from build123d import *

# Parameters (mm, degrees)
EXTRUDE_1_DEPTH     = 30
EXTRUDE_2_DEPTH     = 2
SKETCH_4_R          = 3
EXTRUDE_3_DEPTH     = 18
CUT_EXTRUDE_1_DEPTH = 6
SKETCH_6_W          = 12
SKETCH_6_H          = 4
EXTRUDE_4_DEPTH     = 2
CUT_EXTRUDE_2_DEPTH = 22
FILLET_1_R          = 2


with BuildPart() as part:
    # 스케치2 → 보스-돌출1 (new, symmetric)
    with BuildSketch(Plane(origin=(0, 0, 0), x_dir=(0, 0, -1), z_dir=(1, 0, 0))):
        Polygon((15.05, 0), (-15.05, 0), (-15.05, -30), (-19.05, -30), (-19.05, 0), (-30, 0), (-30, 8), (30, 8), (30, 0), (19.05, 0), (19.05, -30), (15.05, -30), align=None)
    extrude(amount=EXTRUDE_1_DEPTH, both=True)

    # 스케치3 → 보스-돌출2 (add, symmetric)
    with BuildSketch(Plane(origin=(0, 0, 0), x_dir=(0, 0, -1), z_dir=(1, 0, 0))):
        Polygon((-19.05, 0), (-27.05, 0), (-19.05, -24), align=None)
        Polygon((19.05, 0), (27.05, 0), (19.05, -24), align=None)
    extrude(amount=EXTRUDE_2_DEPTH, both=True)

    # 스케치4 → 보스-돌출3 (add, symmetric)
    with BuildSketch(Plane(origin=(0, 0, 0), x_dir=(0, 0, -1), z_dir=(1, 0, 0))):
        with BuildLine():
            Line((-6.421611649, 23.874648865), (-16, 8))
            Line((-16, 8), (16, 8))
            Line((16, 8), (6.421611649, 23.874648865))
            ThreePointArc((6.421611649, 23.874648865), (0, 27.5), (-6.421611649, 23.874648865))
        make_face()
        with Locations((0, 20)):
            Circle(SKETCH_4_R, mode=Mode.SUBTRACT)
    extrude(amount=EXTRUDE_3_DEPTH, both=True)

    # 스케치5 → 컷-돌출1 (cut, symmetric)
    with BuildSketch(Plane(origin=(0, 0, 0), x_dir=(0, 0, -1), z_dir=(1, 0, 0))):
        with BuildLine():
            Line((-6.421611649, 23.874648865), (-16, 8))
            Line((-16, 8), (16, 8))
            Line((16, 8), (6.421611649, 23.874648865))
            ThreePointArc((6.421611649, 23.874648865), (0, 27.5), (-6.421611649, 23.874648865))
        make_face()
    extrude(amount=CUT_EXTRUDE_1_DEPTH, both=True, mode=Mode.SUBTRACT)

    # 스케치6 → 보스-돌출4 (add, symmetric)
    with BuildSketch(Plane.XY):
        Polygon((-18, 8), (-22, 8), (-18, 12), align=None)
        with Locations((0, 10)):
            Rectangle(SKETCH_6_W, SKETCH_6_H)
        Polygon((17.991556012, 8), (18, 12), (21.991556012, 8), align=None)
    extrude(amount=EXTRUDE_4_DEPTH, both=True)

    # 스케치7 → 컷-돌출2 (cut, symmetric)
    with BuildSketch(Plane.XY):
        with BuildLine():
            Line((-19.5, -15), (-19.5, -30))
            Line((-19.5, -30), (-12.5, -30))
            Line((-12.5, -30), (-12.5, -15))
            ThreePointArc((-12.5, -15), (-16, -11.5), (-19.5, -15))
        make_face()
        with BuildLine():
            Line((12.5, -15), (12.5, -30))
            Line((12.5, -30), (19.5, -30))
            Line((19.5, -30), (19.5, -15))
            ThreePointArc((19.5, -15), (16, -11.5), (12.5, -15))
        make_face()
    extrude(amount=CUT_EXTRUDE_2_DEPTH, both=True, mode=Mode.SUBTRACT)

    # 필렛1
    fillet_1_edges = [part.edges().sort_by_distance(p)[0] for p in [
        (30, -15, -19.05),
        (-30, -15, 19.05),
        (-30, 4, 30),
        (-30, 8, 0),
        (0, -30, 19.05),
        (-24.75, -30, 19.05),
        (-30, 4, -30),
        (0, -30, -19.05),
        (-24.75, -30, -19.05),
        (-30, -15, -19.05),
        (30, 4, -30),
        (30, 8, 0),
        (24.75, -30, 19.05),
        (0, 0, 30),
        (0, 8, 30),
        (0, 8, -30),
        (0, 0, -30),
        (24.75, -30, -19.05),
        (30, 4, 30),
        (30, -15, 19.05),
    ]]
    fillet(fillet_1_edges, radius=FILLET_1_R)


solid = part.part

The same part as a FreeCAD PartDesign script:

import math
import FreeCAD as App
import Part
import Sketcher


def edges_at(feature, points):
    """Names of the edges that pass closest to the given points."""
    edges = feature.Shape.Edges
    near = lambda p: min(range(len(edges)), key=lambda i: edges[i].distToShape(Part.Vertex(*p))[0])
    return sorted({f"Edge{near(p) + 1}" for p in points})


def add_polygon(sketch, points):
    """Adds a closed chain of lines whose ends are joined by coincident constraints."""
    first, n = sketch.GeometryCount, len(points)
    for a, b in zip(points, points[1:] + points[:1]):
        sketch.addGeometry(Part.LineSegment(App.Vector(*a, 0), App.Vector(*b, 0)), False)
    for i in range(n):
        sketch.addConstraint(Sketcher.Constraint("Coincident", first + i, 2, first + (i + 1) % n, 1))

doc = App.newDocument("Part")
body = doc.addObject("PartDesign::Body", "Body")

sketch1 = body.newObject("Sketcher::SketchObject", "Sketch")
sketch1.AttachmentSupport = (doc.getObject("YZ_Plane"), [""])
sketch1.MapMode = "FlatFace"
add_polygon(sketch1, [(0, 15.1), (0, -15.1), (-30, -15.1), (-30, -19.1), (0, -19.1), (0, -30), (8, -30), (8, 30), (0, 30), (0, 19.1), (-30, 19.1), (-30, 15.1)])
sketch1.addConstraint([
    Sketcher.Constraint("Vertical", 0),
    Sketcher.Constraint("Horizontal", 1),
    Sketcher.Constraint("Vertical", 2),
    Sketcher.Constraint("Horizontal", 3),
    Sketcher.Constraint("Vertical", 4),
    Sketcher.Constraint("Horizontal", 5),
    Sketcher.Constraint("Vertical", 6),
    Sketcher.Constraint("Horizontal", 7),
    Sketcher.Constraint("Vertical", 8),
    Sketcher.Constraint("Horizontal", 9),
    Sketcher.Constraint("Vertical", 10),
    Sketcher.Constraint("Horizontal", 11),
    Sketcher.Constraint("Symmetric", 4, 2, 7, 2, -1, 1),
    Sketcher.Constraint("Symmetric", 0, 2, 11, 2, -1, 1),
    Sketcher.Constraint("Symmetric", 3, 2, 8, 2, -1),
    Sketcher.Constraint("Vertical", 2, 2, 9, 2),
    Sketcher.Constraint("DistanceX", 1, 2, 1, 1, 30.0),
    Sketcher.Constraint("DistanceX", 5, 1, 5, 2, 8.0),
    Sketcher.Constraint("DistanceY", 2, 2, 2, 1, 4.0),
    Sketcher.Constraint("DistanceY", 6, 1, 6, 2, 60.0),
    Sketcher.Constraint("DistanceY", 0, 2, 0, 1, 30.1),
])
pad1 = body.newObject("PartDesign::Pad", "Pad")
pad1.Profile = sketch1
pad1.Length = 60
pad1.Midplane = True

sketch2 = body.newObject("Sketcher::SketchObject", "Sketch001")
sketch2.AttachmentSupport = (doc.getObject("YZ_Plane"), [""])
sketch2.MapMode = "FlatFace"
add_polygon(sketch2, [(0, 19), (0, 27), (-24, 19)])
add_polygon(sketch2, [(0, -27), (0, -19), (-24, -19)])
sketch2.addConstraint([
    Sketcher.Constraint("Vertical", 0),
    Sketcher.Constraint("Horizontal", 2),
    Sketcher.Constraint("Vertical", 3),
    Sketcher.Constraint("Horizontal", 4),
    Sketcher.Constraint("Symmetric", 2, 2, 3, 2, -1, 1),
    Sketcher.Constraint("Symmetric", 0, 2, 5, 2, -1),
    Sketcher.Constraint("Vertical", 1, 2, 4, 2),
    Sketcher.Constraint("DistanceX", 2, 1, 2, 2, 24.0),
    Sketcher.Constraint("DistanceY", 0, 1, 0, 2, 8.0),
    Sketcher.Constraint("DistanceY", 3, 2, 2, 2, 38.1),
])
pad2 = body.newObject("PartDesign::Pad", "Pad001")
pad2.Profile = sketch2
pad2.Length = 4
pad2.Midplane = True

sketch3 = body.newObject("Sketcher::SketchObject", "Sketch002")
sketch3.AttachmentSupport = (doc.getObject("YZ_Plane"), [""])
sketch3.MapMode = "FlatFace"
sketch3.addGeometry([
    Part.LineSegment(App.Vector(23.9, 6.4, 0), App.Vector(8, 16, 0)),
    Part.LineSegment(App.Vector(8, 16, 0), App.Vector(8, -16, 0)),
    Part.LineSegment(App.Vector(8, -16, 0), App.Vector(23.9, -6.4, 0)),
    Part.ArcOfCircle(Part.Circle(App.Vector(20, 0, 0), App.Vector(0, 0, 1), 7.5), math.radians(-59), math.radians(59)),
    Part.Circle(App.Vector(20, 0, 0), App.Vector(0, 0, 1), 3),
], False)
sketch3.addConstraint([
    Sketcher.Constraint("Coincident", 0, 2, 1, 1),
    Sketcher.Constraint("Coincident", 1, 2, 2, 1),
    Sketcher.Constraint("Tangent", 2, 2, 3, 1),
    Sketcher.Constraint("Tangent", 3, 2, 0, 1),
    Sketcher.Constraint("Vertical", 1),
    Sketcher.Constraint("Coincident", 4, 3, 3, 3),
    Sketcher.Constraint("Symmetric", 2, 2, 3, 2, -1),
    Sketcher.Constraint("Diameter", 4, 6.0),
    Sketcher.Constraint("Radius", 3, 7.5),
    Sketcher.Constraint("DistanceY", 1, 2, 1, 1, 32.0),
    Sketcher.Constraint("DistanceX", -1, 1, 3, 3, 20.0),
    Sketcher.Constraint("DistanceX", -1, 1, 0, 2, 8.0),
])
pad3 = body.newObject("PartDesign::Pad", "Pad002")
pad3.Profile = sketch3
pad3.Length = 36
pad3.Midplane = True

sketch4 = body.newObject("Sketcher::SketchObject", "Sketch003")
sketch4.AttachmentSupport = (doc.getObject("YZ_Plane"), [""])
sketch4.MapMode = "FlatFace"
sketch4.addGeometry([
    Part.LineSegment(App.Vector(24, 6, 0), App.Vector(8, 16, 0)),
    Part.LineSegment(App.Vector(8, 16, 0), App.Vector(8, -16, 0)),
    Part.LineSegment(App.Vector(8, -16, 0), App.Vector(24, -6, 0)),
    Part.ArcOfCircle(Part.Circle(App.Vector(20, 0, 0), App.Vector(0, 0, 1), 8), math.radians(-59), math.radians(59)),
], False)
sketch4.addConstraint([
    Sketcher.Constraint("Coincident", 0, 2, 1, 1),
    Sketcher.Constraint("Coincident", 1, 2, 2, 1),
    Sketcher.Constraint("Tangent", 2, 2, 3, 1),
    Sketcher.Constraint("Tangent", 3, 2, 0, 1),
    Sketcher.Constraint("Vertical", 1),
    Sketcher.Constraint("Symmetric", 2, 2, 3, 2, -1),
    Sketcher.Constraint("Radius", 3, 7.5),
    Sketcher.Constraint("DistanceY", 1, 2, 1, 1, 32.0),
    Sketcher.Constraint("DistanceX", -1, 1, 3, 3, 20.0),
    Sketcher.Constraint("DistanceX", -1, 1, 0, 2, 8.0),
])
pocket1 = body.newObject("PartDesign::Pocket", "Pocket")
pocket1.Profile = sketch4
pocket1.Length = 12
pocket1.Midplane = True

sketch5 = body.newObject("Sketcher::SketchObject", "Sketch004")
sketch5.AttachmentSupport = (doc.getObject("XY_Plane"), [""])
sketch5.MapMode = "FlatFace"
add_polygon(sketch5, [(-22, 8), (-18, 8), (-18, 12)])
add_polygon(sketch5, [(-6, 12), (-6, 8), (6, 8), (6, 12)])
add_polygon(sketch5, [(18, 12), (18, 8), (22, 8)])
sketch5.addConstraint([
    Sketcher.Constraint("Horizontal", 0),
    Sketcher.Constraint("Vertical", 1),
    Sketcher.Constraint("Vertical", 3),
    Sketcher.Constraint("Horizontal", 4),
    Sketcher.Constraint("Vertical", 5),
    Sketcher.Constraint("Horizontal", 6),
    Sketcher.Constraint("Horizontal", 8),
    Sketcher.Constraint("Symmetric", 1, 2, 9, 2, -2),
    Sketcher.Constraint("Horizontal", 2, 2, 3, 2),
    Sketcher.Constraint("Horizontal", 1, 2, 5, 2),
    Sketcher.Constraint("Horizontal", 4, 2, 7, 2),
    Sketcher.Constraint("Equal", 0, 8),
    Sketcher.Constraint("Equal", 8, 1),
    Sketcher.Constraint("DistanceX", 0, 1, 0, 2, 4.0),
    Sketcher.Constraint("DistanceX", 4, 1, 4, 2, 12.0),
    Sketcher.Constraint("DistanceX", 0, 2, -1, 1, 18.0),
    Sketcher.Constraint("DistanceY", -1, 1, 0, 2, 8.0),
    Sketcher.Constraint("DistanceX", 3, 2, -1, 1, 6.0),
    Sketcher.Constraint("Distance", 9, 5.650887),
])
pad4 = body.newObject("PartDesign::Pad", "Pad003")
pad4.Profile = sketch5
pad4.Length = 4
pad4.Midplane = True

sketch6 = body.newObject("Sketcher::SketchObject", "Sketch005")
sketch6.AttachmentSupport = (doc.getObject("XY_Plane"), [""])
sketch6.MapMode = "FlatFace"
sketch6.addGeometry([
    Part.LineSegment(App.Vector(-19.5, -15, 0), App.Vector(-19.5, -30, 0)),
    Part.LineSegment(App.Vector(-19.5, -30, 0), App.Vector(-12.5, -30, 0)),
    Part.LineSegment(App.Vector(-12.5, -30, 0), App.Vector(-12.5, -15, 0)),
    Part.ArcOfCircle(Part.Circle(App.Vector(-16, -15, 0), App.Vector(0, 0, 1), 3.5), math.radians(0), math.radians(180)),
    Part.LineSegment(App.Vector(12.5, -15, 0), App.Vector(12.5, -30, 0)),
    Part.LineSegment(App.Vector(12.5, -30, 0), App.Vector(19.5, -30, 0)),
    Part.LineSegment(App.Vector(19.5, -30, 0), App.Vector(19.5, -15, 0)),
    Part.ArcOfCircle(Part.Circle(App.Vector(16, -15, 0), App.Vector(0, 0, 1), 3.5), math.radians(0), math.radians(180)),
], False)
sketch6.addConstraint([
    Sketcher.Constraint("Coincident", 0, 2, 1, 1),
    Sketcher.Constraint("Coincident", 1, 2, 2, 1),
    Sketcher.Constraint("Tangent", 2, 2, 3, 1),
    Sketcher.Constraint("Tangent", 3, 2, 0, 1),
    Sketcher.Constraint("Coincident", 4, 2, 5, 1),
    Sketcher.Constraint("Coincident", 5, 2, 6, 1),
    Sketcher.Constraint("Tangent", 6, 2, 7, 1),
    Sketcher.Constraint("Tangent", 7, 2, 4, 1),
    Sketcher.Constraint("Vertical", 0),
    Sketcher.Constraint("Horizontal", 1),
    Sketcher.Constraint("Vertical", 2),
    Sketcher.Constraint("Vertical", 4),
    Sketcher.Constraint("Horizontal", 5),
    Sketcher.Constraint("Vertical", 6),
    Sketcher.Constraint("Equal", 3, 7),
    Sketcher.Constraint("Symmetric", 3, 3, 7, 3, -2),
    Sketcher.Constraint("Horizontal", 1, 2, 4, 2),
    Sketcher.Constraint("Radius", 3, 3.5),
    Sketcher.Constraint("DistanceY", 0, 2, 0, 1, 15.0),
    Sketcher.Constraint("DistanceX", 3, 3, -1, 1, 16.0),
    Sketcher.Constraint("DistanceY", 3, 3, -1, 1, 15.0),
])
pocket2 = body.newObject("PartDesign::Pocket", "Pocket001")
pocket2.Profile = sketch6
pocket2.Length = 44
pocket2.Midplane = True
doc.recompute()

fillet = body.newObject("PartDesign::Fillet", "Fillet")
fillet.Base = (pocket2, edges_at(pocket2, [
    (30, -15, -19.05),
    (-30, -15, 19.05),
    (-30, 4, 30),
    (-30, 8, 0),
    (0, -30, 19.05),
    (-24.75, -30, 19.05),
    (-30, 4, -30),
    (0, -30, -19.05),
    (-24.75, -30, -19.05),
    (-30, -15, -19.05),
    (30, 4, -30),
    (30, 8, 0),
    (24.75, -30, 19.05),
    (0, 0, 30),
    (0, 8, 30),
    (0, 8, -30),
    (0, 0, -30),
    (24.75, -30, -19.05),
    (30, 4, 30),
    (30, -15, 19.05),
]))
fillet.Radius = 2

doc.recompute()
